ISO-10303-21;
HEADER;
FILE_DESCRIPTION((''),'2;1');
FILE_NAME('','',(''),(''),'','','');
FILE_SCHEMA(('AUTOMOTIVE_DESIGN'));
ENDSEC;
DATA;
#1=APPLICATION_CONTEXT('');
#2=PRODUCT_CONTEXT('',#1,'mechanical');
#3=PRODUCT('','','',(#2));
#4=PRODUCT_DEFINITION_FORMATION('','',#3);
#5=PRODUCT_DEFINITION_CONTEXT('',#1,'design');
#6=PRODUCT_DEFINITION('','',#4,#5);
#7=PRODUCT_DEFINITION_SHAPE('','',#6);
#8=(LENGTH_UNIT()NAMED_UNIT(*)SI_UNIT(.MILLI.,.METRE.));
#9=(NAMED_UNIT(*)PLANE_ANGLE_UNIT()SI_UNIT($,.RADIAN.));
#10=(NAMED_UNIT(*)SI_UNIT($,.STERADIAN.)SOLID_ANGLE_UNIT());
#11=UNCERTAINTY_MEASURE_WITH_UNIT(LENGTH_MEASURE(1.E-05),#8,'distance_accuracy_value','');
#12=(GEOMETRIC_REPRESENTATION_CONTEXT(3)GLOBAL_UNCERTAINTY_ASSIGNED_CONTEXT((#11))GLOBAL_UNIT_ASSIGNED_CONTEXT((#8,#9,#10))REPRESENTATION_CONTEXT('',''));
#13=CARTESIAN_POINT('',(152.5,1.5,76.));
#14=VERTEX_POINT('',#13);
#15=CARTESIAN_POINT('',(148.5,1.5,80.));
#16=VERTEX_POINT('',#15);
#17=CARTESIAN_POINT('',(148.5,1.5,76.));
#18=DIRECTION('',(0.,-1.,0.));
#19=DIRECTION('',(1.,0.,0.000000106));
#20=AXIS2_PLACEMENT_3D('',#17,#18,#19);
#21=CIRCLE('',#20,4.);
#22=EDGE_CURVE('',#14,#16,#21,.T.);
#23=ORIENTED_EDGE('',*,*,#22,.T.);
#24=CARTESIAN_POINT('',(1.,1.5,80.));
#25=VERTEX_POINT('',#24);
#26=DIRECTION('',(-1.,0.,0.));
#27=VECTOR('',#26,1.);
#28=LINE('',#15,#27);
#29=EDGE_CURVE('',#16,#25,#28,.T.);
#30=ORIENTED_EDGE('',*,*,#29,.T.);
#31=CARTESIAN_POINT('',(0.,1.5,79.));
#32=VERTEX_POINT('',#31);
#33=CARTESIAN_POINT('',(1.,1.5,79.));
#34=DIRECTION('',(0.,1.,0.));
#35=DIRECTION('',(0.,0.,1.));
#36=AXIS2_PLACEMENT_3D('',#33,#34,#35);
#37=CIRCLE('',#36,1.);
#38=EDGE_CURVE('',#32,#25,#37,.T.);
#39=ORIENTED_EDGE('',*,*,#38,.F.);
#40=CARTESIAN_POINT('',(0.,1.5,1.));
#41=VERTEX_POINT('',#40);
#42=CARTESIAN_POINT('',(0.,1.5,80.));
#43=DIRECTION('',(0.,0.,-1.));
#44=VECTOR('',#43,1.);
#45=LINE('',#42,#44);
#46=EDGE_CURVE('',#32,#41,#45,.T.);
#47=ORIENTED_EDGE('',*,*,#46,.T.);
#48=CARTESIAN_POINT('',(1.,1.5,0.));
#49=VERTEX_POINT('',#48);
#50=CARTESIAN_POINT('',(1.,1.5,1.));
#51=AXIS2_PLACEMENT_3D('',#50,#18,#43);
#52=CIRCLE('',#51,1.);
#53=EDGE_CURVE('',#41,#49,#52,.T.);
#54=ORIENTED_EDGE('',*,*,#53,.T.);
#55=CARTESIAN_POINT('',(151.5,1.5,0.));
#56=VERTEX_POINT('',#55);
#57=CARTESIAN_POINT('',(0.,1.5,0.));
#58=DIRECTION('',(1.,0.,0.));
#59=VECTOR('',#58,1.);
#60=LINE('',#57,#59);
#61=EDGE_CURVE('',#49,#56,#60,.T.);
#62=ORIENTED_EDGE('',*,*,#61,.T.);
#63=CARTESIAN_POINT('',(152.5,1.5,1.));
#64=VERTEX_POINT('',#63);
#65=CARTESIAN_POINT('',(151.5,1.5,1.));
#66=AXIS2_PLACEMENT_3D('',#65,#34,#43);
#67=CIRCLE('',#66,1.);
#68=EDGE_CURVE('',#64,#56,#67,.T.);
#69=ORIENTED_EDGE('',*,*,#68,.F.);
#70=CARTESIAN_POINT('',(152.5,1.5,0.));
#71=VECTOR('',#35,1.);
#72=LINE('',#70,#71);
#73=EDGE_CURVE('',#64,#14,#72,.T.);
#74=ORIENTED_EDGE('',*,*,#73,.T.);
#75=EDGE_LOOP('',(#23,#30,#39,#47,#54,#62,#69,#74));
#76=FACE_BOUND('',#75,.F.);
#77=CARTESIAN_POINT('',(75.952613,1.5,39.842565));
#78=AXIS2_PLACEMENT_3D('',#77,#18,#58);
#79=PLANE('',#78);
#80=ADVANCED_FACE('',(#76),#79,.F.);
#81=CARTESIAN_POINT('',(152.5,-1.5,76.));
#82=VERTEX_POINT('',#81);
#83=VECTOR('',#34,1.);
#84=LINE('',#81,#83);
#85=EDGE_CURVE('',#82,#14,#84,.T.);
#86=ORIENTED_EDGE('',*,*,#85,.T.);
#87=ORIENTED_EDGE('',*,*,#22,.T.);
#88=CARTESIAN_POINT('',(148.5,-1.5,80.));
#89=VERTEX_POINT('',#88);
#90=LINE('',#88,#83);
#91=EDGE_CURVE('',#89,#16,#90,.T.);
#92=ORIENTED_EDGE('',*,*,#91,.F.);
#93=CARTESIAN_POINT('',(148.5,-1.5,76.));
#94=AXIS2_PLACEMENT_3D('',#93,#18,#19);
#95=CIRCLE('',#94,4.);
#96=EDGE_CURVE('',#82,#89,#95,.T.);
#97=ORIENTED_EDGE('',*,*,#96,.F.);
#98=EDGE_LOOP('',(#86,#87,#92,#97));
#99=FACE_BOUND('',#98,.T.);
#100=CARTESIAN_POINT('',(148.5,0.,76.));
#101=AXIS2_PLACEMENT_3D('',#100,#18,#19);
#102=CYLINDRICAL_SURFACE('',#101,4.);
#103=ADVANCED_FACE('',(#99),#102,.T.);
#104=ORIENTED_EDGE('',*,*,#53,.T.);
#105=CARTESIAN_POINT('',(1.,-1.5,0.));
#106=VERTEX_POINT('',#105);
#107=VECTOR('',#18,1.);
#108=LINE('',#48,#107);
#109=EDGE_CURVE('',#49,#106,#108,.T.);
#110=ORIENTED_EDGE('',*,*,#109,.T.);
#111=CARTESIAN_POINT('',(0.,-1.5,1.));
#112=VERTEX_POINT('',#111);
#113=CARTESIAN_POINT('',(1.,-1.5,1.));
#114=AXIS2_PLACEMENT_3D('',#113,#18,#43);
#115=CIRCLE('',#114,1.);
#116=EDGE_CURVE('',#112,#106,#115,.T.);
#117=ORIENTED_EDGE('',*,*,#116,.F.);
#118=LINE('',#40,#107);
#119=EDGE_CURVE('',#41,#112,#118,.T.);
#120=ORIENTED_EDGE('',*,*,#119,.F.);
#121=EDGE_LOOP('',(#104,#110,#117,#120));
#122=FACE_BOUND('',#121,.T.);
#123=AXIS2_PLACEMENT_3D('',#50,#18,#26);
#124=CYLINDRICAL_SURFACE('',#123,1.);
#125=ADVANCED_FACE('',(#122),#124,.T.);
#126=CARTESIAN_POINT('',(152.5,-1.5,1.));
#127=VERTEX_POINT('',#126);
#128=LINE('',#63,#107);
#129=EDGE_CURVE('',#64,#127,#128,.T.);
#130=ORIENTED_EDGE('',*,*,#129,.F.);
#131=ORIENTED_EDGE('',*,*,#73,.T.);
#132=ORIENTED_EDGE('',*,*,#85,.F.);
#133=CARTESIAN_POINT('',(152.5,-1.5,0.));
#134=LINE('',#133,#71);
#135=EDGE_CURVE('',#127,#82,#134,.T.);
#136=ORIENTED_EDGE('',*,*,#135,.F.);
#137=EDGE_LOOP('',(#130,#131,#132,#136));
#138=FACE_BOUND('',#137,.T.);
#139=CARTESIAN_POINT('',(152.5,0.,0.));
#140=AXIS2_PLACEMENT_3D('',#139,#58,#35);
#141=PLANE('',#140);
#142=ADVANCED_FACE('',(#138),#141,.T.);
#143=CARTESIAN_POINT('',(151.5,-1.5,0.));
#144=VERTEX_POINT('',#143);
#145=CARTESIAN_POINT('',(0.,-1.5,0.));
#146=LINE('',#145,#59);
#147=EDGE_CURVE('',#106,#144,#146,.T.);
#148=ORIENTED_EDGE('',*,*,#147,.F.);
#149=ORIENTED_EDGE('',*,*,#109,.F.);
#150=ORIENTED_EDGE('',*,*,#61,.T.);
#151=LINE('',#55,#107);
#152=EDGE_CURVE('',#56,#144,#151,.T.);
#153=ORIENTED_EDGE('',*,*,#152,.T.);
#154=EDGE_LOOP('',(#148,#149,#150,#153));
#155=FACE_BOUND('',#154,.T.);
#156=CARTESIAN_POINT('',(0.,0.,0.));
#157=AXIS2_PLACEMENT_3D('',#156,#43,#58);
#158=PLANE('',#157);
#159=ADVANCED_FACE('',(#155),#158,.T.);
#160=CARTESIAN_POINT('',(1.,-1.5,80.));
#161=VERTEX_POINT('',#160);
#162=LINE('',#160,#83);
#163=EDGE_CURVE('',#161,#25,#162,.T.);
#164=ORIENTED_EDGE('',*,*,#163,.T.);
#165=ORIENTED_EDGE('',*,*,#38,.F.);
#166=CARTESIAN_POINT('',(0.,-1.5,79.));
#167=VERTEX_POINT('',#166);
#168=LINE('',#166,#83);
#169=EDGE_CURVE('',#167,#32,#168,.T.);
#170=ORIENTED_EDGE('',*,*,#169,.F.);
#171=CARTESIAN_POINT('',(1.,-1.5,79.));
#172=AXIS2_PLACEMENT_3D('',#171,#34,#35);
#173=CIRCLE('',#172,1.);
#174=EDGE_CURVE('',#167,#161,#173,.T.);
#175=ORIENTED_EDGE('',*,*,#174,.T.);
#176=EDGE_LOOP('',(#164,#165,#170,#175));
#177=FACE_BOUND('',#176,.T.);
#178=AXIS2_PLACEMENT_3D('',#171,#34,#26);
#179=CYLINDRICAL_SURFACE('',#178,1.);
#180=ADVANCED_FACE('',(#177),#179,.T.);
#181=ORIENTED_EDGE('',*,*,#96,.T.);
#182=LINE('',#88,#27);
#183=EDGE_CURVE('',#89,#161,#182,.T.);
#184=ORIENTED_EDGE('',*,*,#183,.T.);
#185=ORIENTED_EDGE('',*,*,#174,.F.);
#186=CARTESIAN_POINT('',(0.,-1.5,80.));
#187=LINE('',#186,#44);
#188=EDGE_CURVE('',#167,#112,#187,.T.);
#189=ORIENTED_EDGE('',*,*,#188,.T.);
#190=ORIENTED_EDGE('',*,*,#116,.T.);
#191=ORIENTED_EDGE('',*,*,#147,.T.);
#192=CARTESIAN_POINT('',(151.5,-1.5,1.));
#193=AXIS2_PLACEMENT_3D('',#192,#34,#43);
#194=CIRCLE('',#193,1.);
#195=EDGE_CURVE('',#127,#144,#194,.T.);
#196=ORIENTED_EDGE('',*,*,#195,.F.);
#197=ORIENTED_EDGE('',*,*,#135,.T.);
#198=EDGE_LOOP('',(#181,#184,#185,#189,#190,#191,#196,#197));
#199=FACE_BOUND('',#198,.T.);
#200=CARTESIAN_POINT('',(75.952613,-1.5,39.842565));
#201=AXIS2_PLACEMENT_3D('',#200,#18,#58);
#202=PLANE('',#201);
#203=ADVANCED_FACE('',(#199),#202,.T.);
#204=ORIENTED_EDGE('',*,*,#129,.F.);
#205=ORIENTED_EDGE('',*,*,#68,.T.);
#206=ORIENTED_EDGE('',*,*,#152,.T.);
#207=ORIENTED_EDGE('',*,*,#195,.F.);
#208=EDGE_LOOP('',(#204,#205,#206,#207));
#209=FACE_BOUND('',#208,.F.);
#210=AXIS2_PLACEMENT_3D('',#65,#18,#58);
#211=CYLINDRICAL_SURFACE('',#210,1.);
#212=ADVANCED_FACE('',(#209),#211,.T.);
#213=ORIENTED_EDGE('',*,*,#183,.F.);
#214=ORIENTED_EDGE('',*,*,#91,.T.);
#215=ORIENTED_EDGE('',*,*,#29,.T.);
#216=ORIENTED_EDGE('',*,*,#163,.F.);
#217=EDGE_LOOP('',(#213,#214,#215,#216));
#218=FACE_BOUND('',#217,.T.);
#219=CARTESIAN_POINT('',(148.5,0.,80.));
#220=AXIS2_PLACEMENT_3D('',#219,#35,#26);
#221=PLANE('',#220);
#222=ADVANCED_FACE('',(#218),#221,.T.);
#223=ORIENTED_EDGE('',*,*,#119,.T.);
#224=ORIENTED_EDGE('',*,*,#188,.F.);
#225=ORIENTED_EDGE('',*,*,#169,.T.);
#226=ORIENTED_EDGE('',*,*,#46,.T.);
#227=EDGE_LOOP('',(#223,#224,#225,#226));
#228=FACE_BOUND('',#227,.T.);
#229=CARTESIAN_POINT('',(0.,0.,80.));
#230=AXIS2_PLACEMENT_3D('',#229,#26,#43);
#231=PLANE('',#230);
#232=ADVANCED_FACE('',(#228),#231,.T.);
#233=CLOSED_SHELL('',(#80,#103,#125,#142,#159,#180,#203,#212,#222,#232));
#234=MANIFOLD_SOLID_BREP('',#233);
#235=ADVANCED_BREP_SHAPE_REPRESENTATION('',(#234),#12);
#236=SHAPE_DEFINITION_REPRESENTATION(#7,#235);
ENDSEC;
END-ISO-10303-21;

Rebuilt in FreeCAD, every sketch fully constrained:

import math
import FreeCAD as App
import Part
import Sketcher
from FreeCAD import Vector
Q = App.Units.Quantity


def edges_at(feature, points):
    """Names of the edges that pass closest to the given points."""
    edges = feature.Shape.Edges
    near = lambda p: min(range(len(edges)), key=lambda i: edges[i].distToShape(Part.Vertex(*p))[0])
    return sorted({f"Edge{near(p) + 1}" for p in points})

doc = App.newDocument("Part")
body = doc.addObject("PartDesign::Body", "Body")

# Sketch on XZ plane
sketch1 = doc.addObject("Sketcher::SketchObject", "Sketch")
body.addObject(sketch1)
sketch1.AttachmentSupport = (doc.XZ_Plane, [""])
sketch1.MapMode = "FlatFace"
sketch1.addGeometry([
    Part.LineSegment(Vector(0, 80, 0), Vector(0, 0, 0)),  # 0
    Part.LineSegment(Vector(0, 0, 0), Vector(152.5, 0, 0)),  # 1
    Part.LineSegment(Vector(152.5, 0, 0), Vector(152.5, 76, 0)),  # 2
    Part.ArcOfCircle(Part.Circle(Vector(148.5, 76, 0), Vector(0, 0, 1), 4), math.radians(0), math.radians(90)),  # 3
    Part.LineSegment(Vector(148.5, 80, 0), Vector(0, 80, 0)),  # 4
], False)
sketch1.addConstraint([
    Sketcher.Constraint("Coincident", 0, 2, 1, 1),
    Sketcher.Constraint("Coincident", 1, 2, 2, 1),
    Sketcher.Constraint("Tangent", 2, 2, 3, 1),
    Sketcher.Constraint("Tangent", 3, 2, 4, 1),
    Sketcher.Constraint("Coincident", 4, 2, 0, 1),
    Sketcher.Constraint("Vertical", 0),
    Sketcher.Constraint("Horizontal", 1),
    Sketcher.Constraint("Vertical", 2),
    Sketcher.Constraint("Horizontal", 4),
    Sketcher.Constraint("Coincident", 0, 2, -1, 1),
    Sketcher.Constraint("Radius", 3, Q("4 mm")),
    Sketcher.Constraint("DistanceY", 0, 2, 0, 1, Q("80 mm")),
    Sketcher.Constraint("DistanceX", 1, 1, 1, 2, Q("152.5 mm")),
])
pad1 = doc.addObject("PartDesign::Pad", "Pad")
body.addObject(pad1)
pad1.Profile = sketch1
pad1.Length = 3
pad1.Midplane = True
doc.recompute()

fillet = doc.addObject("PartDesign::Fillet", "Fillet")
body.addObject(fillet)
fillet.Base = (pad1, edges_at(pad1, [(152.5, 0, 0), (0, 0, 80), (0, 0, 0)]))
fillet.Radius = 1

doc.recompute()
